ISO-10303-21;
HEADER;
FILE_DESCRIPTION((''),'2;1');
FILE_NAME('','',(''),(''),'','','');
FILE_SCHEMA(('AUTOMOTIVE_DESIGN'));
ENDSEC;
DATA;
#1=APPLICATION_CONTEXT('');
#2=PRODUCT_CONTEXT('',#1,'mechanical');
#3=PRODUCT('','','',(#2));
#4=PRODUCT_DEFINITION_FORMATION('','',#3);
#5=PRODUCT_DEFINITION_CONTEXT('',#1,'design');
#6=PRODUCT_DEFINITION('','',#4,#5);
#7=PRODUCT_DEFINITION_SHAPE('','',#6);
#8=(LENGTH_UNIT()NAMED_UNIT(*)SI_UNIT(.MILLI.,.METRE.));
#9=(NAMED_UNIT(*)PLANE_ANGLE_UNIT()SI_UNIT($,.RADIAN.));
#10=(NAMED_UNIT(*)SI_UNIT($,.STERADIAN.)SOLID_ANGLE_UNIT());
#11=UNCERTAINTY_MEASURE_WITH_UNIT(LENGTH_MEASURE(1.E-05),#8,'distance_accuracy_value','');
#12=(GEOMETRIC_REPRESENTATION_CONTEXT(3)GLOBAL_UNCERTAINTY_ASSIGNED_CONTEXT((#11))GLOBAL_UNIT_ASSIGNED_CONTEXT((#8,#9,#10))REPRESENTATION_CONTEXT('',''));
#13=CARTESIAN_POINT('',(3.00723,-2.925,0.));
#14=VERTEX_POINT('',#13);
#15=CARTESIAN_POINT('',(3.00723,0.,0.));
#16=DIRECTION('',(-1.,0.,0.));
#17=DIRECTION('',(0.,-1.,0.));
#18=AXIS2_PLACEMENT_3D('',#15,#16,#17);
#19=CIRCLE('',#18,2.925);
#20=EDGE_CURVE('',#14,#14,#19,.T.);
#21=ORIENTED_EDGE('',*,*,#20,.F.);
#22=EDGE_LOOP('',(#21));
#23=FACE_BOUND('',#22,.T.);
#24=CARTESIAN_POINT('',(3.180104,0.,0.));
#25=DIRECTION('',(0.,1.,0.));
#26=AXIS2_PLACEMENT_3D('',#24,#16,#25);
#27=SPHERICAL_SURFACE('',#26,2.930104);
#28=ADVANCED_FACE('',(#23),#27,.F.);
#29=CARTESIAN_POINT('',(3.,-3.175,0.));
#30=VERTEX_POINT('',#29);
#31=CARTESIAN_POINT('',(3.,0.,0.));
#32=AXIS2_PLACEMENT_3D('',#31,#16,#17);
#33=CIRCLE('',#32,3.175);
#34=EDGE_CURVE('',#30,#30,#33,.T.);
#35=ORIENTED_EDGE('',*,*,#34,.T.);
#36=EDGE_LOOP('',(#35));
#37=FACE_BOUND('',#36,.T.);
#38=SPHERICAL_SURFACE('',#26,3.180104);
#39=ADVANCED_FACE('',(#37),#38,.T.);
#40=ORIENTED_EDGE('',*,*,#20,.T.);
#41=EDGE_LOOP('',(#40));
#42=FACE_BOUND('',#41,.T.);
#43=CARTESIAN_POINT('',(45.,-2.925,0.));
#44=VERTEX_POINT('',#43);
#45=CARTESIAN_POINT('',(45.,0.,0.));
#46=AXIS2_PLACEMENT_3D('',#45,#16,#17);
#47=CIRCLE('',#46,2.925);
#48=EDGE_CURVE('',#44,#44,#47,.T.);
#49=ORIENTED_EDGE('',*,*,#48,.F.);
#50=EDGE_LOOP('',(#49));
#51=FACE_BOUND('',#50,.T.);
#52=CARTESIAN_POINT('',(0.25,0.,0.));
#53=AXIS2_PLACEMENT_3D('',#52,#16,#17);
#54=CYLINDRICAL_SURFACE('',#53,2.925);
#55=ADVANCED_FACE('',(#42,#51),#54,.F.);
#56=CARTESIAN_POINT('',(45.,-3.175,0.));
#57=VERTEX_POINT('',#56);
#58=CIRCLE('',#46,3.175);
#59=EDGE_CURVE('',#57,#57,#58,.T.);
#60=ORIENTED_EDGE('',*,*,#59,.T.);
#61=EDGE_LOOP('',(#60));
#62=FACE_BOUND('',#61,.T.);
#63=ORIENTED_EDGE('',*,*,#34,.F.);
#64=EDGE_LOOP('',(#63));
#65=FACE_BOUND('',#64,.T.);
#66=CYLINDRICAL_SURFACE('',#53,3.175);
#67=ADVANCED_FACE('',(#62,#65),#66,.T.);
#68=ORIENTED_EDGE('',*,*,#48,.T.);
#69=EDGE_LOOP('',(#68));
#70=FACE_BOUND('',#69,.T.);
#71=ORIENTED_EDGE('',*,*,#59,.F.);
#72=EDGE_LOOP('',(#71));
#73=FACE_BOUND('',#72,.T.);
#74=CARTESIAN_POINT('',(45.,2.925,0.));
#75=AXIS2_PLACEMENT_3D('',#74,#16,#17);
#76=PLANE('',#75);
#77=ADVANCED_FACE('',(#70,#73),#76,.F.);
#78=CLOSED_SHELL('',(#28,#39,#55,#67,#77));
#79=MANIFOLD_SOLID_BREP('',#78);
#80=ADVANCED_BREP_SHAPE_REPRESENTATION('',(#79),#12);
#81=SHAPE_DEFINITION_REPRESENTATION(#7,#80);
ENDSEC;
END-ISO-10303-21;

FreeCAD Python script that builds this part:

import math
import FreeCAD as App
import Part
import Sketcher
from FreeCAD import Vector

doc = App.newDocument("Part")
body = doc.addObject("PartDesign::Body", "Body")

# Sketch on XY plane
sketch1 = doc.addObject("Sketcher::SketchObject", "Sketch")
body.addObject(sketch1)
sketch1.AttachmentSupport = (doc.XY_Plane, [""])
sketch1.MapMode = "FlatFace"
sketch1.addGeometry([
    Part.LineSegment(Vector(45, 3.17, 0), Vector(3, 3.17, 0)),  # 0
    Part.ArcOfCircle(Part.Circle(Vector(3.18, 0, 0), Vector(0, 0, 1), 3.18), math.radians(93), math.radians(180)),  # 1
    Part.LineSegment(Vector(0, 0, 0), Vector(0.25, 0, 0)),  # 2
    Part.ArcOfCircle(Part.Circle(Vector(3.18, 0, 0), Vector(0, 0, 1), 2.93), math.radians(93), math.radians(180)),  # 3
    Part.LineSegment(Vector(3.01, 2.92, 0), Vector(45, 2.92, 0)),  # 4
    Part.LineSegment(Vector(45, 2.92, 0), Vector(45, 3.17, 0)),  # 5
], False)
sketch1.addConstraint([
    Sketcher.Constraint("Coincident", 0, 2, 1, 1),
    Sketcher.Constraint("Coincident", 1, 2, 2, 1),
    Sketcher.Constraint("Coincident", 2, 2, 3, 2),
    Sketcher.Constraint("Coincident", 3, 1, 4, 1),
    Sketcher.Constraint("Coincident", 4, 2, 5, 1),
    Sketcher.Constraint("Coincident", 5, 2, 0, 1),
    Sketcher.Constraint("Horizontal", 0),
    Sketcher.Constraint("Horizontal", 2),
    Sketcher.Constraint("Horizontal", 4),
    Sketcher.Constraint("Vertical", 5),
    Sketcher.Constraint("Coincident", 1, 2, -1, 1),
    Sketcher.Constraint("Coincident", 3, 3, 1, 3),
    Sketcher.Constraint("PointOnObject", 1, 3, -1),
    Sketcher.Constraint("Equal", 2, 5),
    Sketcher.Constraint("DistanceX", 0, 2, 0, 1, 42.0),
    Sketcher.Constraint("DistanceX", -1, 1, 0, 2, 3.0),
    Sketcher.Constraint("DistanceX", 2, 1, 2, 2, 0.25),
    Sketcher.Constraint("DistanceY", -1, 1, 0, 2, 3.175),
])
revolution = doc.addObject("PartDesign::Revolution", "Revolution")
body.addObject(revolution)
revolution.Profile = sketch1
revolution.ReferenceAxis = (sketch1, ["H_Axis"])
revolution.Angle = 360

doc.recompute()
